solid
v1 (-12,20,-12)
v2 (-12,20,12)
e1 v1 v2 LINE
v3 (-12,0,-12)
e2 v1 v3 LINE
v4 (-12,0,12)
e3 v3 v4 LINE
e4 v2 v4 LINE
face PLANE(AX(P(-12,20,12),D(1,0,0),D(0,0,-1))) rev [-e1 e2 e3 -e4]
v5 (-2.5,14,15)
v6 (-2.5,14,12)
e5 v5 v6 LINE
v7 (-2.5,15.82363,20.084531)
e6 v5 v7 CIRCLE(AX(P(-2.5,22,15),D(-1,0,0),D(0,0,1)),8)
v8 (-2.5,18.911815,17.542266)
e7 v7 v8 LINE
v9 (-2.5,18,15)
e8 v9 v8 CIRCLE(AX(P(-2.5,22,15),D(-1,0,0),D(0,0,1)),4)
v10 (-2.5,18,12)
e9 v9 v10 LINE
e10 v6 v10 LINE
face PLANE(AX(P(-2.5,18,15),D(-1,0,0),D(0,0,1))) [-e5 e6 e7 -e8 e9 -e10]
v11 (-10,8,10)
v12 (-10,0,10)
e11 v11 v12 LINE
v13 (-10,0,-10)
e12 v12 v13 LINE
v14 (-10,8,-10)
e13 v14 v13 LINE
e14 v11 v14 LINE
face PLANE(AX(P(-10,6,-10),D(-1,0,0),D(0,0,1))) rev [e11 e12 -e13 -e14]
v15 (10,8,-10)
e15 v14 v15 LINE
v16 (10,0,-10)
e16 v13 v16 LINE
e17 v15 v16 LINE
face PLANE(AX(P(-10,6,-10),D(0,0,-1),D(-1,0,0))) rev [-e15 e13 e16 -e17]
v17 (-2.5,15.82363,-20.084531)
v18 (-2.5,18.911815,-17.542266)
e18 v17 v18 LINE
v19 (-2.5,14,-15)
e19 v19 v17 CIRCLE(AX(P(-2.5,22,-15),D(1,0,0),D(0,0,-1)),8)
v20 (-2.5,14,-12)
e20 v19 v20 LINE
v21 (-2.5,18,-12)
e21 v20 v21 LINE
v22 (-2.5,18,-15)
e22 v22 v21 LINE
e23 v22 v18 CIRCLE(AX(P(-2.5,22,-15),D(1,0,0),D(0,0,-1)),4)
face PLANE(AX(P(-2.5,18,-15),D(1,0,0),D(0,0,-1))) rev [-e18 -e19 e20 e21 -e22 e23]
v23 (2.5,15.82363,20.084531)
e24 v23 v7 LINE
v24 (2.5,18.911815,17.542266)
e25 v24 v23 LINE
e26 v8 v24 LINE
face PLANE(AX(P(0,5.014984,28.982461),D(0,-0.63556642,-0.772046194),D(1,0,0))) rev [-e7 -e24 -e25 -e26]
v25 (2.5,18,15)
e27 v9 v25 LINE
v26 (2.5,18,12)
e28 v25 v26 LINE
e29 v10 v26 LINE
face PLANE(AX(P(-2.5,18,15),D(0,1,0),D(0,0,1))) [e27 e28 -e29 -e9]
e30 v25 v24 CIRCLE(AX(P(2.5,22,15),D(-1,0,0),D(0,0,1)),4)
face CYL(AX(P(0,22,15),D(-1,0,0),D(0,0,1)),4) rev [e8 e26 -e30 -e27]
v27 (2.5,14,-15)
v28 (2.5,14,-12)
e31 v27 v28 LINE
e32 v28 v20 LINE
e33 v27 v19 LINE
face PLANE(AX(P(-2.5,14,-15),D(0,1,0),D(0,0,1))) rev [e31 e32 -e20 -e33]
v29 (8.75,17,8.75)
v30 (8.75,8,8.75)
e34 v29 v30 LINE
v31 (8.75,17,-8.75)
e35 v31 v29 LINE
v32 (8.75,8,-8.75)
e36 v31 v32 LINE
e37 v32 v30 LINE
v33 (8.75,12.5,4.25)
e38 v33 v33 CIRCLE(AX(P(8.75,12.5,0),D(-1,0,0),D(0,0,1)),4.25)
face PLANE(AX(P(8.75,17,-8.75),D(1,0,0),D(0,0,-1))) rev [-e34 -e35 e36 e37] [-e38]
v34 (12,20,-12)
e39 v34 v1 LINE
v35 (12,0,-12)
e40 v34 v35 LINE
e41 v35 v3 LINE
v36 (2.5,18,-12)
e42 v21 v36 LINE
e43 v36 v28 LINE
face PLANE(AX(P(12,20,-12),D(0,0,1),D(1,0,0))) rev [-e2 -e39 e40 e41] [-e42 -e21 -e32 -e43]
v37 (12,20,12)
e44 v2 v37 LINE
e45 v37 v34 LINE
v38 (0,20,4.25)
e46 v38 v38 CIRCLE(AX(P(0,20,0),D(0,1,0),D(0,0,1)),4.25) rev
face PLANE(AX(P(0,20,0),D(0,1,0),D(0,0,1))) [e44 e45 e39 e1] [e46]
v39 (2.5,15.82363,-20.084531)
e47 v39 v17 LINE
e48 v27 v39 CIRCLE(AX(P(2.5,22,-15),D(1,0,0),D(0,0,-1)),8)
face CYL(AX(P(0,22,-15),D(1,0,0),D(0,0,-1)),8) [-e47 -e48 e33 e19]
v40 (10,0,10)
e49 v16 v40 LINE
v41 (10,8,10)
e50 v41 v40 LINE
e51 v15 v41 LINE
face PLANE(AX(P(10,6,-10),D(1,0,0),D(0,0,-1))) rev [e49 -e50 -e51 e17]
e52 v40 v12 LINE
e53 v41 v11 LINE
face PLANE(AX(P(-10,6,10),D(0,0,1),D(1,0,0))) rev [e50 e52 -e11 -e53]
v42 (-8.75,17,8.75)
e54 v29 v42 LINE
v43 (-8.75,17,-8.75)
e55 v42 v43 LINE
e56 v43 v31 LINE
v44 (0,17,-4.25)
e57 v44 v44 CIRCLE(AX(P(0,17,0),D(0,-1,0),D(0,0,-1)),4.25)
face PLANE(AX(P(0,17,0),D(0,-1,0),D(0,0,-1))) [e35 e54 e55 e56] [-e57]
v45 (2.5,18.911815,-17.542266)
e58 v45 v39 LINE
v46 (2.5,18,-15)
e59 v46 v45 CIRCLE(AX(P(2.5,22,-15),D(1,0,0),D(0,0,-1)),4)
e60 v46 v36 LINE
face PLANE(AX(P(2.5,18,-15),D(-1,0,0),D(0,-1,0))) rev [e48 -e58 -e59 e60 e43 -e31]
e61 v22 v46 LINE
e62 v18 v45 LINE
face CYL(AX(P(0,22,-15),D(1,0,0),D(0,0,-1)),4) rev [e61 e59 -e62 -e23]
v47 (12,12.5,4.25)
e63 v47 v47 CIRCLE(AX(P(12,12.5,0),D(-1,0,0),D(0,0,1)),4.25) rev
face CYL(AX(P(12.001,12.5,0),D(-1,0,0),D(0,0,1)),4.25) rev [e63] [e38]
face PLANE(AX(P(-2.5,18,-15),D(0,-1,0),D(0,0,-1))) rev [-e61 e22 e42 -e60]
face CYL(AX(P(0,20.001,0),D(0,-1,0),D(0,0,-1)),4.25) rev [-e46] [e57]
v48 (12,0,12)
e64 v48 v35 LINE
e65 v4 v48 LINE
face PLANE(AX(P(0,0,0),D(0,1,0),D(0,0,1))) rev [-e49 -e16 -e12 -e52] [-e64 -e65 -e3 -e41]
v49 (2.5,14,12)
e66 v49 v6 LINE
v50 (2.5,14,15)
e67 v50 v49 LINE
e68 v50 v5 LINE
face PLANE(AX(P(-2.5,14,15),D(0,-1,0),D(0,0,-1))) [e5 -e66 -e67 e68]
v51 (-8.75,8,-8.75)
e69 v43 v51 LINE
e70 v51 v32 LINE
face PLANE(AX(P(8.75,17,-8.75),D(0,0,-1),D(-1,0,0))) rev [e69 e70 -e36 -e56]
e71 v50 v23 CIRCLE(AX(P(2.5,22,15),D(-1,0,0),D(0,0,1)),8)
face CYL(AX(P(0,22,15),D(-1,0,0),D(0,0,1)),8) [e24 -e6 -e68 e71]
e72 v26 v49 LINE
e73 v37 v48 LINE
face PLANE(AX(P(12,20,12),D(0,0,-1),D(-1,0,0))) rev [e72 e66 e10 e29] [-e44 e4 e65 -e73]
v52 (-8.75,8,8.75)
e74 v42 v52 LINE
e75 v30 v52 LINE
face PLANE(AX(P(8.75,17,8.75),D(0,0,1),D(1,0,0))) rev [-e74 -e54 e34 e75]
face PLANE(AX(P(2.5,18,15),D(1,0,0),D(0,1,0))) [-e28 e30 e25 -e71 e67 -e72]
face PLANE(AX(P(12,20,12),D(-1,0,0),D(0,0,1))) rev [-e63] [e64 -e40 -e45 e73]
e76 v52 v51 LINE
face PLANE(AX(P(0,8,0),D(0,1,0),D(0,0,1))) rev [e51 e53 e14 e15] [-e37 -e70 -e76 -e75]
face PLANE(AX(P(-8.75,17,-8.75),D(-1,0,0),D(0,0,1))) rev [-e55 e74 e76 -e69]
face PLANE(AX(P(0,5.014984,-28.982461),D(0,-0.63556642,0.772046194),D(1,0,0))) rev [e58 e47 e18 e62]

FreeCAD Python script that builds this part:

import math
import FreeCAD as App
import Part
import Sketcher

V = App.Vector


def add_polygon(sketch, points):
    """Adds a closed chain of lines whose ends are joined by coincident constraints."""
    first, n = sketch.GeometryCount, len(points)
    for a, b in zip(points, points[1:] + points[:1]):
        sketch.addGeometry(Part.LineSegment(App.Vector(*a, 0), App.Vector(*b, 0)), False)
    for i in range(n):
        sketch.addConstraint(Sketcher.Constraint("Coincident", first + i, 2, first + (i + 1) % n, 1))

doc = App.newDocument("Part")
params = doc.addObject("Spreadsheet::Sheet", "Params")
for row, (alias, value) in enumerate([
    ("sketch1_width", "24 mm"),
    ("pad1_length", "20 mm"),
    ("sketch2_width", "5 mm"),
    ("sketch2_height", "4 mm"),
    ("sketch3_radius", "6 mm"),
    ("sketch3_height", "3 mm"),
    ("sketch4_width", "20 mm"),
    ("pocket1_length", "6 mm"),
    ("sketch5_width", "20 mm"),
    ("pocket2_length", "2 mm"),
    ("sketch6_width", "17.5 mm"),
    ("pocket3_length", "9 mm"),
    ("sketch7_diameter", "8.5 mm"),
    ("sketch8_diameter", "8.5 mm"),
], start=1):
    params.set(f"A{row}", alias)
    params.set(f"B{row}", "=" + value)
    params.setAlias(f"B{row}", alias)

body = doc.addObject("PartDesign::Body", "Body")

# Sketch on XZ plane
sketch1 = body.newObject("Sketcher::SketchObject", "Sketch")
sketch1.AttachmentSupport = (doc.getObject("XZ_Plane"), [""])
sketch1.MapMode = "FlatFace"
add_polygon(sketch1, [(-12, -12), (-12, 12), (12, 12), (12, -12)])  # lines 0-3
sketch1.addConstraint([
    Sketcher.Constraint("Vertical", 0),
    Sketcher.Constraint("Horizontal", 1),
    Sketcher.Constraint("Vertical", 2),
    Sketcher.Constraint("Horizontal", 3),
    Sketcher.Constraint("Symmetric", 0, 2, 2, 2, -1, 1),
    Sketcher.Constraint("Equal", 3, 0),
    Sketcher.Constraint("DistanceX", 1, 1, 1, 2, 24.0),
])
sketch1.setExpression("Constraints[10]", "Params.sketch1_width")
pad1 = body.newObject("PartDesign::Pad", "Pad")
pad1.Profile = sketch1
pad1.setExpression("Length", "Params.pad1_length")
pad1.Reversed = True

# Sketch on XY plane
sketch2 = body.newObject("Sketcher::SketchObject", "Sketch001")
sketch2.AttachmentSupport = (doc.getObject("XY_Plane"), [""])
sketch2.MapMode = "FlatFace"
sketch2.AttachmentOffset = App.Placement(V(0, 0, -12), App.Rotation())
add_polygon(sketch2, [(2.5, 18), (2.5, 14), (-2.5, 14), (-2.5, 18)])  # lines 0-3
sketch2.addConstraint([
    Sketcher.Constraint("Vertical", 0),
    Sketcher.Constraint("Horizontal", 1),
    Sketcher.Constraint("Vertical", 2),
    Sketcher.Constraint("Horizontal", 3),
    Sketcher.Constraint("DistanceX", 1, 2, 1, 1, 5.0),
    Sketcher.Constraint("DistanceY", 0, 2, 0, 1, 4.0),
    Sketcher.Constraint("DistanceY", -1, 1, 0, 2, 14.0),
    Sketcher.Constraint("DistanceX", -1, 1, 0, 2, 2.5),
])
sketch2.setExpression("Constraints[8]", "Params.sketch2_width")
sketch2.setExpression("Constraints[9]", "Params.sketch2_height")

# Sketch on YZ plane
sketch3 = body.newObject("Sketcher::SketchObject", "Sketch002")
sketch3.AttachmentSupport = (doc.getObject("YZ_Plane"), [""])
sketch3.MapMode = "FlatFace"
sketch3.addGeometry([
    Part.LineSegment(V(16, -12, 0), V(16, -15, 0)),
    Part.ArcOfCircle(Part.Circle(V(22, -15, 0), V(0, 0, 1), 6), math.radians(-180), math.radians(-141)),
], False)
sketch3.addConstraint([
    Sketcher.Constraint("Tangent", 0, 2, 1, 1),
    Sketcher.Constraint("Vertical", 0),
    Sketcher.Constraint("Radius", 1, 6.0),
    Sketcher.Constraint("DistanceY", 0, 2, 0, 1, 3.0),
    Sketcher.Constraint("DistanceX", -1, 1, 1, 3, 22.0),
    Sketcher.Constraint("DistanceY", 1, 3, -1, 1, 15.0),
    Sketcher.Constraint("DistanceY", 1, 2, -1, 1, 18.813399),
])
sketch3.setExpression("Constraints[2]", "Params.sketch3_radius")
sketch3.setExpression("Constraints[3]", "Params.sketch3_height")
doc.recompute()

additivepipe = body.newObject("PartDesign::AdditivePipe", "AdditivePipe")
additivepipe.Profile = sketch2
additivepipe.Spine = (sketch3, ["Edge1", "Edge2"])
doc.recompute()

mirrored = body.newObject("PartDesign::Mirrored", "Mirrored")
mirrored.Originals = [additivepipe]
mirrored.MirrorPlane = (doc.getObject("XY_Plane"), [""])
body.Tip = mirrored

# Sketch on XZ plane
sketch4 = body.newObject("Sketcher::SketchObject", "Sketch003")
sketch4.AttachmentSupport = (doc.getObject("XZ_Plane"), [""])
sketch4.MapMode = "FlatFace"
add_polygon(sketch4, [(-10, 10), (-10, -10), (10, -10), (10, 10)])  # lines 0-3
sketch4.addConstraint([
    Sketcher.Constraint("Vertical", 0),
    Sketcher.Constraint("Horizontal", 1),
    Sketcher.Constraint("Vertical", 2),
    Sketcher.Constraint("Horizontal", 3),
    Sketcher.Constraint("Symmetric", 0, 2, 2, 2, -1, 1),
    Sketcher.Constraint("Equal", 3, 0),
    Sketcher.Constraint("DistanceX", 1, 1, 1, 2, 20.0),
])
sketch4.setExpression("Constraints[10]", "Params.sketch4_width")
pocket1 = body.newObject("PartDesign::Pocket", "Pocket")
pocket1.Profile = sketch4
pocket1.setExpression("Length", "Params.pocket1_length")

# Sketch on XZ plane
sketch5 = body.newObject("Sketcher::SketchObject", "Sketch004")
sketch5.AttachmentSupport = (doc.getObject("XZ_Plane"), [""])
sketch5.MapMode = "FlatFace"
sketch5.AttachmentOffset = App.Placement(V(0, 0, -6), App.Rotation())
add_polygon(sketch5, [(-10, 10), (-10, -10), (10, -10), (10, 10)])  # lines 0-3
sketch5.addConstraint([
    Sketcher.Constraint("Vertical", 0),
    Sketcher.Constraint("Horizontal", 1),
    Sketcher.Constraint("Vertical", 2),
    Sketcher.Constraint("Horizontal", 3),
    Sketcher.Constraint("Symmetric", 0, 2, 2, 2, -1, 1),
    Sketcher.Constraint("Equal", 3, 0),
    Sketcher.Constraint("DistanceX", 1, 1, 1, 2, 20.0),
])
sketch5.setExpression("Constraints[10]", "Params.sketch5_width")
pocket2 = body.newObject("PartDesign::Pocket", "Pocket001")
pocket2.Profile = sketch5
pocket2.setExpression("Length", "Params.pocket2_length")

# Sketch on XZ plane
sketch6 = body.newObject("Sketcher::SketchObject", "Sketch005")
sketch6.AttachmentSupport = (doc.getObject("XZ_Plane"), [""])
sketch6.MapMode = "FlatFace"
sketch6.AttachmentOffset = App.Placement(V(0, 0, -8), App.Rotation())
add_polygon(sketch6, [(-9, 9), (-9, -9), (9, -9), (9, 9)])  # lines 0-3
sketch6.addConstraint([
    Sketcher.Constraint("Vertical", 0),
    Sketcher.Constraint("Horizontal", 1),
    Sketcher.Constraint("Vertical", 2),
    Sketcher.Constraint("Horizontal", 3),
    Sketcher.Constraint("Symmetric", 0, 2, 2, 2, -1, 1),
    Sketcher.Constraint("Equal", 3, 0),
    Sketcher.Constraint("DistanceX", 1, 1, 1, 2, 17.5),
])
sketch6.setExpression("Constraints[10]", "Params.sketch6_width")
pocket3 = body.newObject("PartDesign::Pocket", "Pocket002")
pocket3.Profile = sketch6
pocket3.setExpression("Length", "Params.pocket3_length")

# Sketch on XZ plane
sketch7 = body.newObject("Sketcher::SketchObject", "Sketch006")
sketch7.AttachmentSupport = (doc.getObject("XZ_Plane"), [""])
sketch7.MapMode = "FlatFace"
sketch7.AttachmentOffset = App.Placement(V(0, 0, -17), App.Rotation())
sketch7.addGeometry(Part.Circle(V(0, 0, 0), V(0, 0, 1), 4.2), False)
sketch7.addConstraint([
    Sketcher.Constraint("Coincident", 0, 3, -1, 1),
    Sketcher.Constraint("Diameter", 0, 8.5),
])
sketch7.setExpression("Constraints[1]", "Params.sketch7_diameter")
pocket4 = body.newObject("PartDesign::Pocket", "Pocket003")
pocket4.Profile = sketch7
pocket4.Type = "UpToFirst"

# Sketch on YZ plane
sketch8 = body.newObject("Sketcher::SketchObject", "Sketch007")
sketch8.AttachmentSupport = (doc.getObject("YZ_Plane"), [""])
sketch8.MapMode = "FlatFace"
sketch8.AttachmentOffset = App.Placement(V(0, 0, 8.75), App.Rotation())
sketch8.addGeometry(Part.Circle(V(12.5, 0, 0), V(0, 0, 1), 4.2), False)
sketch8.addConstraint([
    Sketcher.Constraint("PointOnObject", 0, 3, -1),
    Sketcher.Constraint("Diameter", 0, 8.5),
    Sketcher.Constraint("DistanceX", -1, 1, 0, 3, 12.5),
])
sketch8.setExpression("Constraints[1]", "Params.sketch8_diameter")
pocket5 = body.newObject("PartDesign::Pocket", "Pocket004")
pocket5.Profile = sketch8
pocket5.Type = "UpToFirst"
pocket5.Reversed = True

doc.recompute()
